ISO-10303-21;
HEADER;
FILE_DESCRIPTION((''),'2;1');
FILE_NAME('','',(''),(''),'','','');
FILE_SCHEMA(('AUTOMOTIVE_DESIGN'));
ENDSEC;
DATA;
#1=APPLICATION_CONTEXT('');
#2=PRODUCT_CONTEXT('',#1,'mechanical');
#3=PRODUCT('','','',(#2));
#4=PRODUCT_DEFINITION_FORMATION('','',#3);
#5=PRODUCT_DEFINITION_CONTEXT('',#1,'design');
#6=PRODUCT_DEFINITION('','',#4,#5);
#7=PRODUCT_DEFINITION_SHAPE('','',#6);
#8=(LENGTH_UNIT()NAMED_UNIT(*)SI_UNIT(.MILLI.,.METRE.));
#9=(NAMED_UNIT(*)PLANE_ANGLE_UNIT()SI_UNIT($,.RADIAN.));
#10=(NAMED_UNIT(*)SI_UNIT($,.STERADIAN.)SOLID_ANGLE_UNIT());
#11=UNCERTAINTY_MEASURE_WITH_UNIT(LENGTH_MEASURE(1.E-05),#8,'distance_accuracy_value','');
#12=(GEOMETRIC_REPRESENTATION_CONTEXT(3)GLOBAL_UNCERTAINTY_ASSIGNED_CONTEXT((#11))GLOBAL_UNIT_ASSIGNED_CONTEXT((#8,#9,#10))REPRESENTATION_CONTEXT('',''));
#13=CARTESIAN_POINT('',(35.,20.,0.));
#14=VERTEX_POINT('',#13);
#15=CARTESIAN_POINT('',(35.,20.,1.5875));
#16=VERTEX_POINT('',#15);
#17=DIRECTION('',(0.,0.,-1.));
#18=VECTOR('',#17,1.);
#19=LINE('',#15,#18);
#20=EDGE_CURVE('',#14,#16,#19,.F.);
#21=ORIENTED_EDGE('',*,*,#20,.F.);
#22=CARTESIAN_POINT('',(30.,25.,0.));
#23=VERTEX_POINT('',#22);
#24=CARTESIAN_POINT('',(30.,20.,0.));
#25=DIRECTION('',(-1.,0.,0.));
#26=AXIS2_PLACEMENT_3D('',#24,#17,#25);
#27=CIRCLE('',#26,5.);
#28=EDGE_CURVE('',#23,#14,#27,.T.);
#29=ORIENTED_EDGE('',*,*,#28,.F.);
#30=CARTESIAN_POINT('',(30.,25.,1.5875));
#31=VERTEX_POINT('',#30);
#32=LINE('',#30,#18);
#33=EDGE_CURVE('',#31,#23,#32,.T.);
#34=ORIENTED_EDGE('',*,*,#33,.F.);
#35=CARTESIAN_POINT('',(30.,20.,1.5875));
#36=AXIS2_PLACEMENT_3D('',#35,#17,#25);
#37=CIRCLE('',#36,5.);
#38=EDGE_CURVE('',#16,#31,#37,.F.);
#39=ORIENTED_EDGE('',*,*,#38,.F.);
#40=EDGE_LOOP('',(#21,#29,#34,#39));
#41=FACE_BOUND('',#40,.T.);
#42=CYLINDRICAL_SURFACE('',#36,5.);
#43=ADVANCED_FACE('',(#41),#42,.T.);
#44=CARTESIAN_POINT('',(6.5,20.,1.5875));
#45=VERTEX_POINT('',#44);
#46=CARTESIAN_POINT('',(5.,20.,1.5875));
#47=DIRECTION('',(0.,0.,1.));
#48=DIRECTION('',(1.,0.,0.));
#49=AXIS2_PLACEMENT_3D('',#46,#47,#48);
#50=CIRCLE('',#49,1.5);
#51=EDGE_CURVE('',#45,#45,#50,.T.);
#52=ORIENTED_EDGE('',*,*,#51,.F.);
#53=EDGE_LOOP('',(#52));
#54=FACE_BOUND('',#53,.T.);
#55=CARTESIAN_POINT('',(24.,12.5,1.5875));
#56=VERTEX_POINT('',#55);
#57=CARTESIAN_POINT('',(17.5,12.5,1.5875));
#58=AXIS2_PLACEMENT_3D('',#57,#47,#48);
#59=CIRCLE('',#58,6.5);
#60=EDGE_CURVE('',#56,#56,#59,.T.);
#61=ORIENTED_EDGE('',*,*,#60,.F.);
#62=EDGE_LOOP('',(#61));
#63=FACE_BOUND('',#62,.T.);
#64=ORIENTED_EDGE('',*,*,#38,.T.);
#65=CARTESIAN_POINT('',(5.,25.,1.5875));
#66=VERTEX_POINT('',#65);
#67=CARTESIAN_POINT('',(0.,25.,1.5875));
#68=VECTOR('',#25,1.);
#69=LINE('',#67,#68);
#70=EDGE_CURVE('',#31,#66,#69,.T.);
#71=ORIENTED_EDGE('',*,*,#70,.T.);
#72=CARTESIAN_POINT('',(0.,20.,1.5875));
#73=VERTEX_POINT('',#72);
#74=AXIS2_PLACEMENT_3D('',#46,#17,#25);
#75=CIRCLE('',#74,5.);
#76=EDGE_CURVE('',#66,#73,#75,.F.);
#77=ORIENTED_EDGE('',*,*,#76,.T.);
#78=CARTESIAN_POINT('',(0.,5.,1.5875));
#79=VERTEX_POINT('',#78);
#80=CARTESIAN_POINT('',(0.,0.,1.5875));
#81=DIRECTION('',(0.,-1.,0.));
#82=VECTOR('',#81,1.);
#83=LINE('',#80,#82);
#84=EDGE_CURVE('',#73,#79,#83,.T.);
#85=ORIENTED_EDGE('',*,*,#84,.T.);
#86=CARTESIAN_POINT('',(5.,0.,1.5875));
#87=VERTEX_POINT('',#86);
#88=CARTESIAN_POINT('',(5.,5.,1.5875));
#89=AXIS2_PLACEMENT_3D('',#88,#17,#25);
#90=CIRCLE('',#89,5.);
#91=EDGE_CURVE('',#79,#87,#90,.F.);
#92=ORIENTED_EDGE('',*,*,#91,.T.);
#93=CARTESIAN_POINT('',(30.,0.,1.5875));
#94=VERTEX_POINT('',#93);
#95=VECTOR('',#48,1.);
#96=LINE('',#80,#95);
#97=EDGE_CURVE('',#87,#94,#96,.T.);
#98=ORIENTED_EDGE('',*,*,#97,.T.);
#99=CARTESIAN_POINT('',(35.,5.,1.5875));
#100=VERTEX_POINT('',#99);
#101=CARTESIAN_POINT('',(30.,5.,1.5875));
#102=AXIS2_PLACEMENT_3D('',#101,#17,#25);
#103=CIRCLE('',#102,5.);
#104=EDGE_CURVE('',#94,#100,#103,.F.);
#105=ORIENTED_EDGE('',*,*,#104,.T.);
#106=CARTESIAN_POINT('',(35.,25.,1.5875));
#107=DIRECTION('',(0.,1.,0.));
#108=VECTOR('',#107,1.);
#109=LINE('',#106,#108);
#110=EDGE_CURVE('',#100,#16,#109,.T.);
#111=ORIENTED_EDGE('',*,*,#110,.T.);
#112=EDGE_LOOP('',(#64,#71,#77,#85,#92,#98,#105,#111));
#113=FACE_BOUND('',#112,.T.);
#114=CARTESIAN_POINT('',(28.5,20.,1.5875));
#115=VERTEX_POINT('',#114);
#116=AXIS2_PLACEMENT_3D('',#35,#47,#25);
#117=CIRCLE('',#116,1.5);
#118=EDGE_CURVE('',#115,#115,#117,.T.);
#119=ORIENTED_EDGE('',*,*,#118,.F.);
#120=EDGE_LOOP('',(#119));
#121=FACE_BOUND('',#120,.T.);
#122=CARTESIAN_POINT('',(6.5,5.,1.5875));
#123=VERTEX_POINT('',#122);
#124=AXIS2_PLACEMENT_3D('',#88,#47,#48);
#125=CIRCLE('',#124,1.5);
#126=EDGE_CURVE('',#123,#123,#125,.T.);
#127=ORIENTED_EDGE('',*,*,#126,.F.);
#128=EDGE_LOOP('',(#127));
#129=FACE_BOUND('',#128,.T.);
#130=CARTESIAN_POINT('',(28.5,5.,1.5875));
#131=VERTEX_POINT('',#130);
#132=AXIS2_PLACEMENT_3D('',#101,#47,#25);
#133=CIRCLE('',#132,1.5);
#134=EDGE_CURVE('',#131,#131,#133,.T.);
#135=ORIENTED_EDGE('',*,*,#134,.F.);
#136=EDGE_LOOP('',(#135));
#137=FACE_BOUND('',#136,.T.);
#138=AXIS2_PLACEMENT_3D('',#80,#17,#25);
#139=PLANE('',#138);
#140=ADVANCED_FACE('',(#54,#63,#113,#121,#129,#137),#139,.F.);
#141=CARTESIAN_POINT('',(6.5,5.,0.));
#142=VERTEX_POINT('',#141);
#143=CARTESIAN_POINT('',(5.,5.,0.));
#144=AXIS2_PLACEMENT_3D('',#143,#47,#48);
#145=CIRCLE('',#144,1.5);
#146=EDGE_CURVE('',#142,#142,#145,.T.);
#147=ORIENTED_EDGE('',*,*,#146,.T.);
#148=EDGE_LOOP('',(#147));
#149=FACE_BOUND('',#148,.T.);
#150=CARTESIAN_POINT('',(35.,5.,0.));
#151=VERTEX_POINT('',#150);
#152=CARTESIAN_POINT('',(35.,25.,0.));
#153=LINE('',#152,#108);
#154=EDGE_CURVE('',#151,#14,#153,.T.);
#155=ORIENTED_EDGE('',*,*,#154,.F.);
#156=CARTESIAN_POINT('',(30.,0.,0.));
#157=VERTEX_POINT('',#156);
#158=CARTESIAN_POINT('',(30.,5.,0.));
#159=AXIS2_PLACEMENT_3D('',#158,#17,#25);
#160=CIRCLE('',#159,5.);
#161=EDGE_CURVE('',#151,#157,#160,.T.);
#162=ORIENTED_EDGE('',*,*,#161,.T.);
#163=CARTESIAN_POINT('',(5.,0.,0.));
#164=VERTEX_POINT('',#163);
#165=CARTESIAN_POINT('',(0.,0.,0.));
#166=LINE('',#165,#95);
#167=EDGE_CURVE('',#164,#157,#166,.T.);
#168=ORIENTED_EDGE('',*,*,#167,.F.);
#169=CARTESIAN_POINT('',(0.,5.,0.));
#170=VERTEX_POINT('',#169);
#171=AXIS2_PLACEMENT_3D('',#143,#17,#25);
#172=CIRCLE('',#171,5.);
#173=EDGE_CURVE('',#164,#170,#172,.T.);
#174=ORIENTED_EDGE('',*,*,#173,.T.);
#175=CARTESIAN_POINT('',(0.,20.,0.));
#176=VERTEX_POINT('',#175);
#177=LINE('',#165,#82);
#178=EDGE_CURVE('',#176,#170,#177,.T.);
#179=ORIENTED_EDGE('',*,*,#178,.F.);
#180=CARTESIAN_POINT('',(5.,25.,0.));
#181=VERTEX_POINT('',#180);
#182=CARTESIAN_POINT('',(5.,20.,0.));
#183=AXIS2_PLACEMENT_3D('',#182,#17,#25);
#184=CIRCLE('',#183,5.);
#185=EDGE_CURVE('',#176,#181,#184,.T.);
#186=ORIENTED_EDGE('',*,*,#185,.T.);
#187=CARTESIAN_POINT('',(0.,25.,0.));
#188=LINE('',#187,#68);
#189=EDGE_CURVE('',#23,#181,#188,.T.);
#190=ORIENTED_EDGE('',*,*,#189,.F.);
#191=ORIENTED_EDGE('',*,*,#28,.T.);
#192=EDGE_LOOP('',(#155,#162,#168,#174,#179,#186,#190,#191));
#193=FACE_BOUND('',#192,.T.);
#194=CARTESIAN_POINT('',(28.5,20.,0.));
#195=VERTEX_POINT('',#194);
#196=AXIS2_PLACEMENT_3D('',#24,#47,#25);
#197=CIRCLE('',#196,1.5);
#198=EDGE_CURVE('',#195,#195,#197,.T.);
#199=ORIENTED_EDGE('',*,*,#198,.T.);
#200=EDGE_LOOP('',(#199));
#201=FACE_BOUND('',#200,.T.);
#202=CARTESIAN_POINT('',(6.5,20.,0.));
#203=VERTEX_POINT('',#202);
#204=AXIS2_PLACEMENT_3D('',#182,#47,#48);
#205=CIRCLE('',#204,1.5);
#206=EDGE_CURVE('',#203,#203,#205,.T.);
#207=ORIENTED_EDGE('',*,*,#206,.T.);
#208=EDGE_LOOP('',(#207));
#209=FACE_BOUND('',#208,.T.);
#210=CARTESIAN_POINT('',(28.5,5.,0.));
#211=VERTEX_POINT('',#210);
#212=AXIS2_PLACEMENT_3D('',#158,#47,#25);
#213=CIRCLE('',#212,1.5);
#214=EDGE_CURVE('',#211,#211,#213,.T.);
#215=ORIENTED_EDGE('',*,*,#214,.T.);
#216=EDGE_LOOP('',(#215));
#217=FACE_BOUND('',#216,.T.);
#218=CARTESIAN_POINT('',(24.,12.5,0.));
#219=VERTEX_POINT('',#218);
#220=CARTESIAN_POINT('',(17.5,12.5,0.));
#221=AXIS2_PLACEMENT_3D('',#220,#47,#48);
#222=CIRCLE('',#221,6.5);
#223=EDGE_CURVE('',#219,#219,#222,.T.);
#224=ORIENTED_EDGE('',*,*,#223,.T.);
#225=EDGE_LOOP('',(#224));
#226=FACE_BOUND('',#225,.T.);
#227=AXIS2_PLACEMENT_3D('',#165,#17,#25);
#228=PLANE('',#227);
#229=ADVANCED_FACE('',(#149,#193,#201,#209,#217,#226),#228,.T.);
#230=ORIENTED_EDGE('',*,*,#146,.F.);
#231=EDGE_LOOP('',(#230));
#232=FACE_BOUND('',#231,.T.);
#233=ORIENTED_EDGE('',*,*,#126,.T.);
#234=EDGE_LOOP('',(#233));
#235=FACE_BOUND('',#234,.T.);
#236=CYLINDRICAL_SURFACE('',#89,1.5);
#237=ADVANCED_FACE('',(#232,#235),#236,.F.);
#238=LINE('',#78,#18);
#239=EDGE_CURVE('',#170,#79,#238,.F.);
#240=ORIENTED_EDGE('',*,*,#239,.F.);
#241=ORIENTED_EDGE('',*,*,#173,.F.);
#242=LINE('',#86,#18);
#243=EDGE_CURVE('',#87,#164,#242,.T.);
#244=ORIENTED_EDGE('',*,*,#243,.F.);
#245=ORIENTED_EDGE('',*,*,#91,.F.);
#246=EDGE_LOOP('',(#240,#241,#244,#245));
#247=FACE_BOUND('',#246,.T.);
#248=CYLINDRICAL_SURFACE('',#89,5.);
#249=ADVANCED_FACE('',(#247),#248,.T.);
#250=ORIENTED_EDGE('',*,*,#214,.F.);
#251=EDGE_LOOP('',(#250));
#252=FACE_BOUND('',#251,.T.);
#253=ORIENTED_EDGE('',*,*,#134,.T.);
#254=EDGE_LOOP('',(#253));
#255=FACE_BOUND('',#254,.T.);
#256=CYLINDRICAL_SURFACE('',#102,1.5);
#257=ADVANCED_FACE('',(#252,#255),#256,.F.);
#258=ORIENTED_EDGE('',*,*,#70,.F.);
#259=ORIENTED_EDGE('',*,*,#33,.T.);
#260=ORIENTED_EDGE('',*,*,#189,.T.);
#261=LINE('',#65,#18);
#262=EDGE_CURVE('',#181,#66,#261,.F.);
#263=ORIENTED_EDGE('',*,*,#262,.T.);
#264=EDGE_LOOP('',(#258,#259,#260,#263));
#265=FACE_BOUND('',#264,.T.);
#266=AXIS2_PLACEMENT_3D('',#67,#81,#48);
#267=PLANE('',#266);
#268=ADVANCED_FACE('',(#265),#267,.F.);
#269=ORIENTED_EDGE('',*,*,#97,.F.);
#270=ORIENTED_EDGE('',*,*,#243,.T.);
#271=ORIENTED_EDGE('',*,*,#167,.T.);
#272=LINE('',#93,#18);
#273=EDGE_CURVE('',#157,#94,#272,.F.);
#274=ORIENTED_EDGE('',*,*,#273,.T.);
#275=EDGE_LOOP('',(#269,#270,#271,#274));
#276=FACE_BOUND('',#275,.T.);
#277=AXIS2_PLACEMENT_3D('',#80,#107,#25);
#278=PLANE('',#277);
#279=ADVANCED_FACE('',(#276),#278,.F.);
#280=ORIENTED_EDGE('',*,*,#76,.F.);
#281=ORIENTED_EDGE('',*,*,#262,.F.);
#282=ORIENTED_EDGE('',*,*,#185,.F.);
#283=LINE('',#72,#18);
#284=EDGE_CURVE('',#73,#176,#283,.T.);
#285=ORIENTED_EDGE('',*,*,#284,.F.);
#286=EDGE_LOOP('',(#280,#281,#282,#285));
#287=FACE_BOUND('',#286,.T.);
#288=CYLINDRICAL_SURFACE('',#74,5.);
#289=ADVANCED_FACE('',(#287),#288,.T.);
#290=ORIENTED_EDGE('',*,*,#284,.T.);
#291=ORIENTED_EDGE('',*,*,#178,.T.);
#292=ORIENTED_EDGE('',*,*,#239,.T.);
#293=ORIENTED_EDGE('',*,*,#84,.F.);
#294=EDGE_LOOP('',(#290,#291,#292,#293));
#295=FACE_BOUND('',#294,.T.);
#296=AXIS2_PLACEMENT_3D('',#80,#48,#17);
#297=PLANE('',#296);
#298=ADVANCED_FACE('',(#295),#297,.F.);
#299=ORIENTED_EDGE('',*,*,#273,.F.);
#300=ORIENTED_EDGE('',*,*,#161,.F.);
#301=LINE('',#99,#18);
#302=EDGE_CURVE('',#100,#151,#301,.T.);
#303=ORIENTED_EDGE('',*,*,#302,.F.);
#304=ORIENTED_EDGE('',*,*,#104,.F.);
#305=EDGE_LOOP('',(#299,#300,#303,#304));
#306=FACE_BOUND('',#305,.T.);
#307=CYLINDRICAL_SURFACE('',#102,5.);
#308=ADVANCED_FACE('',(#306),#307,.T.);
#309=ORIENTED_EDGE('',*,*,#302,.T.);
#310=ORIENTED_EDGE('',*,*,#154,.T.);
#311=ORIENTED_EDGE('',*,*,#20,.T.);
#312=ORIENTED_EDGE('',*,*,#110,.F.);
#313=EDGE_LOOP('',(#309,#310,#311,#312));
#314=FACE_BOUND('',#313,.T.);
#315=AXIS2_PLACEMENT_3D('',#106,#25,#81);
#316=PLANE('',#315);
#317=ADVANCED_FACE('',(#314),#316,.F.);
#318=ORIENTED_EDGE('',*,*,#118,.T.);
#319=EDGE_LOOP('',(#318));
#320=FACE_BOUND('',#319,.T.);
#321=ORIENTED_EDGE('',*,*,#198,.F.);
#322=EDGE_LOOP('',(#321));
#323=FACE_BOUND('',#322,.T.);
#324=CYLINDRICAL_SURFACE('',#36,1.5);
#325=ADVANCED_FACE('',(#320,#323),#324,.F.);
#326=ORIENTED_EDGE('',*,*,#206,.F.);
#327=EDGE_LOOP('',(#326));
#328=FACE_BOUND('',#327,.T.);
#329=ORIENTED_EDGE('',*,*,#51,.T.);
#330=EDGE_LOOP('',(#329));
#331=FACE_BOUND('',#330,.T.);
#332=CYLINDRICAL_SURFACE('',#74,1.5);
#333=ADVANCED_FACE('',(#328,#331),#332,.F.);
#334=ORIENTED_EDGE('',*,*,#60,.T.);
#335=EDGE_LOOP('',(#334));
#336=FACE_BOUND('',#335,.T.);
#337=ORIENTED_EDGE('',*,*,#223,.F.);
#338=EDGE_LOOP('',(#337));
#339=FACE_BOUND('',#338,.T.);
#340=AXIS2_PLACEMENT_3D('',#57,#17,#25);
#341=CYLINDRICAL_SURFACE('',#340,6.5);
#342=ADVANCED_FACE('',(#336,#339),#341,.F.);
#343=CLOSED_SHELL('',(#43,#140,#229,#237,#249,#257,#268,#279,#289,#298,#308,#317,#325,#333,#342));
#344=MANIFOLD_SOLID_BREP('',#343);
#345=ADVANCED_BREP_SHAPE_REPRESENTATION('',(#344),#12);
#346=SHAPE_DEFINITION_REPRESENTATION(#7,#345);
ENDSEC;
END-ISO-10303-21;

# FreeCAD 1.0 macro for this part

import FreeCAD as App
import Part
import Sketcher
from FreeCAD import Vector


def edges_at(feature, points):
    """Names of the edges that pass closest to the given points."""
    edges = feature.Shape.Edges
    near = lambda p: min(range(len(edges)), key=lambda i: edges[i].distToShape(Part.Vertex(*p))[0])
    return sorted({f"Edge{near(p) + 1}" for p in points})


def add_polygon(sketch, points):
    """Adds a closed chain of lines whose ends are joined by coincident constraints."""
    first, n = sketch.GeometryCount, len(points)
    for a, b in zip(points, points[1:] + points[:1]):
        sketch.addGeometry(Part.LineSegment(App.Vector(*a, 0), App.Vector(*b, 0)), False)
    for i in range(n):
        sketch.addConstraint(Sketcher.Constraint("Coincident", first + i, 2, first + (i + 1) % n, 1))

doc = App.newDocument("Part")
body = doc.addObject("PartDesign::Body", "Body")

# Sketch on XY plane
sketch1 = doc.addObject("Sketcher::SketchObject", "Sketch")
body.addObject(sketch1)
sketch1.AttachmentSupport = (doc.XY_Plane, [""])
sketch1.MapMode = "FlatFace"
add_polygon(sketch1, [(0, 25), (0, 0), (35, 0), (35, 25)])  # lines 0-3
sketch1.addGeometry(Part.Circle(Vector(5, 5, 0), Vector(0, 0, 1), 1.5), False)  # 4
sketch1.addGeometry(Part.Circle(Vector(30, 5, 0), Vector(0, 0, 1), 1.5), False)  # 5
sketch1.addGeometry(Part.Circle(Vector(5, 20, 0), Vector(0, 0, 1), 1.5), False)  # 6
sketch1.addGeometry(Part.Circle(Vector(17.5, 12.5, 0), Vector(0, 0, 1), 6.5), False)  # 7
sketch1.addGeometry(Part.Circle(Vector(30, 20, 0), Vector(0, 0, 1), 1.5), False)  # 8
sketch1.addConstraint(Sketcher.Constraint("Vertical", 0))
sketch1.addConstraint(Sketcher.Constraint("Horizontal", 1))
sketch1.addConstraint(Sketcher.Constraint("Vertical", 2))
sketch1.addConstraint(Sketcher.Constraint("Horizontal", 3))
sketch1.addConstraint(Sketcher.Constraint("Coincident", 0, 2, -1, 1))
sketch1.addConstraint(Sketcher.Constraint("Equal", 4, 5))
sketch1.addConstraint(Sketcher.Constraint("Equal", 5, 6))
sketch1.addConstraint(Sketcher.Constraint("Equal", 6, 8))
sketch1.addConstraint(Sketcher.Constraint("Horizontal", 4, 3, 5, 3))
sketch1.addConstraint(Sketcher.Constraint("Horizontal", 6, 3, 8, 3))
sketch1.addConstraint(Sketcher.Constraint("Vertical", 4, 3, 6, 3))
sketch1.addConstraint(Sketcher.Constraint("Vertical", 5, 3, 8, 3))
sketch1.addConstraint(Sketcher.Constraint("Diameter", 4, 3.0))
sketch1.addConstraint(Sketcher.Constraint("Diameter", 7, 13.0))
sketch1.addConstraint(Sketcher.Constraint("DistanceX", 1, 1, 1, 2, 35.0))
sketch1.addConstraint(Sketcher.Constraint("DistanceY", 0, 2, 0, 1, 25.0))
sketch1.addConstraint(Sketcher.Constraint("DistanceX", -1, 1, 4, 3, 5.0))
sketch1.addConstraint(Sketcher.Constraint("DistanceY", -1, 1, 4, 3, 5.0))
sketch1.addConstraint(Sketcher.Constraint("DistanceX", -1, 1, 5, 3, 30.0))
sketch1.addConstraint(Sketcher.Constraint("DistanceY", -1, 1, 6, 3, 20.0))
sketch1.addConstraint(Sketcher.Constraint("DistanceX", -1, 1, 7, 3, 17.5))
sketch1.addConstraint(Sketcher.Constraint("DistanceY", -1, 1, 7, 3, 12.5))
pad1 = doc.addObject("PartDesign::Pad", "Pad")
body.addObject(pad1)
pad1.Profile = sketch1
pad1.Length = 1.5875
doc.recompute()

fillet = doc.addObject("PartDesign::Fillet", "Fillet")
body.addObject(fillet)
fillet.Base = (pad1, edges_at(pad1, [
    (0, 0, 0.794),
    (0, 25, 0.794),
    (35, 25, 0.794),
    (35, 0, 0.794),
]))
fillet.Radius = 5

doc.recompute()
